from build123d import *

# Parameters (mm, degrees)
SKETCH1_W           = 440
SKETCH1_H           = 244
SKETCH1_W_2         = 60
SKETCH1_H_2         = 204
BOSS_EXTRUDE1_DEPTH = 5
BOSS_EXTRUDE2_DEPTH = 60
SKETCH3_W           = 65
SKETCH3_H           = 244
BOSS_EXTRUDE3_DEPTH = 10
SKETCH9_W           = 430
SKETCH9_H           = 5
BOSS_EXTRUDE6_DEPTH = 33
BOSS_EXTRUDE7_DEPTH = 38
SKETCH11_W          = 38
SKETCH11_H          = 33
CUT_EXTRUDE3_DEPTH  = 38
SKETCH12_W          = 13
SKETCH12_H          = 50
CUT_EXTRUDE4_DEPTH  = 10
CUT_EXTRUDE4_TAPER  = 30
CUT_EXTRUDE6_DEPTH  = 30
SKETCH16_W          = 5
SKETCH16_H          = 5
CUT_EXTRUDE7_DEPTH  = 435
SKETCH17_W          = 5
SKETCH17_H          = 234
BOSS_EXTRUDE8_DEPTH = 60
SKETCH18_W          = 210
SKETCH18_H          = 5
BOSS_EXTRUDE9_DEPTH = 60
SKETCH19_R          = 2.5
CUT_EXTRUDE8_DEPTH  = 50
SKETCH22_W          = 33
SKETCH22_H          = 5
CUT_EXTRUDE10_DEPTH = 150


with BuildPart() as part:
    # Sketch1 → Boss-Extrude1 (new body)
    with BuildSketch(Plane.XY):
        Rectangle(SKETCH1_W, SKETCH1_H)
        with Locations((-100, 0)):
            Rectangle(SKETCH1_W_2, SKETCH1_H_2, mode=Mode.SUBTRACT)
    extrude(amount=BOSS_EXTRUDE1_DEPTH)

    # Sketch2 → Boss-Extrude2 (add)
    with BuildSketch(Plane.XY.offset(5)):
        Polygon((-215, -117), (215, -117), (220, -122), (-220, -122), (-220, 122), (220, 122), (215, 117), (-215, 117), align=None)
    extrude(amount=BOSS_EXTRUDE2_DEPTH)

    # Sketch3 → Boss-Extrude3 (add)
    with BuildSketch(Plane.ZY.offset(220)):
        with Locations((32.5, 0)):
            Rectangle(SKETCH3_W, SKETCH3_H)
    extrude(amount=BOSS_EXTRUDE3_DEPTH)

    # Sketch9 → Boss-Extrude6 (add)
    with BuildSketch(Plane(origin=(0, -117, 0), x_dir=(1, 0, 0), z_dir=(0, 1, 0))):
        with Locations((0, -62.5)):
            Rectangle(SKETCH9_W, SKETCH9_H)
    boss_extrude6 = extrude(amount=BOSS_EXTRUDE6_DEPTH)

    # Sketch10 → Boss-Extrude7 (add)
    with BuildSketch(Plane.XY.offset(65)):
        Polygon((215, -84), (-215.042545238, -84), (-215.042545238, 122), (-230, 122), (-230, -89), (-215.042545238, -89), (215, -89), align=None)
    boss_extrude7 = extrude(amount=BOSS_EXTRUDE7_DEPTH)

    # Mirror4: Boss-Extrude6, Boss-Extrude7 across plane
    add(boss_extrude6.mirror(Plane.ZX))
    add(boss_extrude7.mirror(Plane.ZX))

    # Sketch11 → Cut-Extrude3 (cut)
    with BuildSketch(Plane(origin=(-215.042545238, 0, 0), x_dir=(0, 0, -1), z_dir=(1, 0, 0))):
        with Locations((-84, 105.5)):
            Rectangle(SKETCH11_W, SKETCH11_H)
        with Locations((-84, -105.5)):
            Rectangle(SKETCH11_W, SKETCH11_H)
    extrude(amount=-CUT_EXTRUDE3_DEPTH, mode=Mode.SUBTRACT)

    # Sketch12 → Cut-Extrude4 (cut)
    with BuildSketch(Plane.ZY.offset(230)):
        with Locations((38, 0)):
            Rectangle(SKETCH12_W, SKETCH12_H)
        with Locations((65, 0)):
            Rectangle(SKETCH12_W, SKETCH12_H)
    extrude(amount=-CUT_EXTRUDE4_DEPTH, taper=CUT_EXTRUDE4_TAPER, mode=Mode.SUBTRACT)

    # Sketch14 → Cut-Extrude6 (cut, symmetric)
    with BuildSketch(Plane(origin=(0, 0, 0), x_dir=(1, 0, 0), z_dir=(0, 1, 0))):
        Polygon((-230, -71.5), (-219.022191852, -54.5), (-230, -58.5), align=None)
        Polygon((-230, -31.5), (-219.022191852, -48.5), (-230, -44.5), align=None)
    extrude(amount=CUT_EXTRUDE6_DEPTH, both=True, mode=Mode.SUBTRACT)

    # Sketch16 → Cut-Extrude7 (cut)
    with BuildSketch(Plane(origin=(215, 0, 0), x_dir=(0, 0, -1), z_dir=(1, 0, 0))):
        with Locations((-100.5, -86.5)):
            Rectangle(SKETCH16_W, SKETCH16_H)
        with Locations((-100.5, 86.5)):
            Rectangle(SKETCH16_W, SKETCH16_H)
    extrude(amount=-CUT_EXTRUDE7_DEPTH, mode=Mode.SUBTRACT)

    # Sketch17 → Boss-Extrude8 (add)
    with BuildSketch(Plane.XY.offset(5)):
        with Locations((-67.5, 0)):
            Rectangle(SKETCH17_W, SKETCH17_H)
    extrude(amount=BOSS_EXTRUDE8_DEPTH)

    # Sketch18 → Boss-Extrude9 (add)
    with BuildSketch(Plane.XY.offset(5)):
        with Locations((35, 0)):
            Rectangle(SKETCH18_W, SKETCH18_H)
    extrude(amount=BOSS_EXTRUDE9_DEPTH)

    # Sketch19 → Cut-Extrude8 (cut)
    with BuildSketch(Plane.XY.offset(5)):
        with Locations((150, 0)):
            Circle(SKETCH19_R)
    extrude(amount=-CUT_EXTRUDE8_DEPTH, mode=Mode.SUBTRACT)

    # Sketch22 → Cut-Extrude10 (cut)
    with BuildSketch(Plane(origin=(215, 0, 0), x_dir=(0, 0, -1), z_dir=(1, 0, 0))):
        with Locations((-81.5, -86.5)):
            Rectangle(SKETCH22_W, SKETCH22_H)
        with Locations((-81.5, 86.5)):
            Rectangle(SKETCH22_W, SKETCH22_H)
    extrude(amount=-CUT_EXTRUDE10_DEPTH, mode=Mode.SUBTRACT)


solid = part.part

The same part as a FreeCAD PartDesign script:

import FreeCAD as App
import Part
import Sketcher

V = App.Vector


def add_polygon(sketch, points):
    """Adds a closed chain of lines whose ends are joined by coincident constraints."""
    first, n = sketch.GeometryCount, len(points)
    for a, b in zip(points, points[1:] + points[:1]):
        sketch.addGeometry(Part.LineSegment(App.Vector(*a, 0), App.Vector(*b, 0)), False)
    for i in range(n):
        sketch.addConstraint(Sketcher.Constraint("Coincident", first + i, 2, first + (i + 1) % n, 1))

doc = App.newDocument("Part")
body = doc.addObject("PartDesign::Body", "Body")

sketch1 = body.newObject("Sketcher::SketchObject", "Sketch")
sketch1.AttachmentSupport = (doc.getObject("XY_Plane"), [""])
sketch1.MapMode = "FlatFace"
add_polygon(sketch1, [(-220, 122), (-220, -122), (220, -122), (220, 122)])
add_polygon(sketch1, [(-70, -102), (-130, -102), (-130, 102), (-70, 102)])
sketch1.addConstraint(Sketcher.Constraint("Vertical", 0))
sketch1.addConstraint(Sketcher.Constraint("Horizontal", 1))
sketch1.addConstraint(Sketcher.Constraint("Vertical", 2))
sketch1.addConstraint(Sketcher.Constraint("Horizontal", 3))
sketch1.addConstraint(Sketcher.Constraint("Horizontal", 4))
sketch1.addConstraint(Sketcher.Constraint("Vertical", 5))
sketch1.addConstraint(Sketcher.Constraint("Horizontal", 6))
sketch1.addConstraint(Sketcher.Constraint("Vertical", 7))
sketch1.addConstraint(Sketcher.Constraint("Symmetric", 0, 2, 2, 2, -1, 1))
sketch1.addConstraint(Sketcher.Constraint("DistanceX", 1, 1, 1, 2, 440.0))
sketch1.addConstraint(Sketcher.Constraint("DistanceX", 4, 2, 4, 1, 60.0))
sketch1.addConstraint(Sketcher.Constraint("DistanceY", 0, 2, 0, 1, 244.0))
sketch1.addConstraint(Sketcher.Constraint("DistanceY", 5, 1, 5, 2, 204.0))
sketch1.addConstraint(Sketcher.Constraint("DistanceX", 4, 2, -1, 1, 130.0))
sketch1.addConstraint(Sketcher.Constraint("DistanceY", 4, 2, -1, 1, 102.0))
pad1 = body.newObject("PartDesign::Pad", "Pad")
pad1.Profile = sketch1
pad1.Length = 5

sketch2 = body.newObject("Sketcher::SketchObject", "Sketch001")
sketch2.AttachmentSupport = (doc.getObject("XY_Plane"), [""])
sketch2.MapMode = "FlatFace"
sketch2.AttachmentOffset = App.Placement(V(0, 0, 5), App.Rotation())
add_polygon(sketch2, [(215, -117), (-215, -117), (-215, 117), (215, 117), (220, 122), (-220, 122), (-220, -122), (220, -122)])
sketch2.addConstraint(Sketcher.Constraint("Horizontal", 0))
sketch2.addConstraint(Sketcher.Constraint("Vertical", 1))
sketch2.addConstraint(Sketcher.Constraint("Horizontal", 2))
sketch2.addConstraint(Sketcher.Constraint("Horizontal", 4))
sketch2.addConstraint(Sketcher.Constraint("Vertical", 5))
sketch2.addConstraint(Sketcher.Constraint("Horizontal", 6))
sketch2.addConstraint(Sketcher.Constraint("Symmetric", 0, 2, 2, 2, -1, 1))
sketch2.addConstraint(Sketcher.Constraint("Symmetric", 3, 2, 5, 2, -1, 1))
sketch2.addConstraint(Sketcher.Constraint("Perpendicular", 3, 7))
sketch2.addConstraint(Sketcher.Constraint("Vertical", 3, 2, 6, 2))
sketch2.addConstraint(Sketcher.Constraint("Vertical", 2, 2, 7, 2))
sketch2.addConstraint(Sketcher.Constraint("DistanceX", 0, 2, 0, 1, 430.0))
sketch2.addConstraint(Sketcher.Constraint("DistanceX", 4, 2, 4, 1, 440.0))
sketch2.addConstraint(Sketcher.Constraint("DistanceY", 1, 1, 1, 2, 234.0))
pad2 = body.newObject("PartDesign::Pad", "Pad001")
pad2.Profile = sketch2
pad2.Length = 60

sketch3 = body.newObject("Sketcher::SketchObject", "Sketch002")
sketch3.AttachmentSupport = (doc.getObject("YZ_Plane"), [""])
sketch3.MapMode = "FlatFace"
sketch3.AttachmentOffset = App.Placement(V(0, 0, -220), App.Rotation())
add_polygon(sketch3, [(122, 0), (-122, 0), (-122, 65), (122, 65)])
sketch3.addConstraint(Sketcher.Constraint("Horizontal", 0))
sketch3.addConstraint(Sketcher.Constraint("Vertical", 1))
sketch3.addConstraint(Sketcher.Constraint("Horizontal", 2))
sketch3.addConstraint(Sketcher.Constraint("Vertical", 3))
sketch3.addConstraint(Sketcher.Constraint("Symmetric", 0, 2, 3, 2, -1, 1))
sketch3.addConstraint(Sketcher.Constraint("DistanceX", 0, 2, 0, 1, 244.0))
sketch3.addConstraint(Sketcher.Constraint("DistanceY", 1, 1, 1, 2, 65.0))
pad3 = body.newObject("PartDesign::Pad", "Pad002")
pad3.Profile = sketch3
pad3.Length = 10
pad3.Reversed = True

sketch4 = body.newObject("Sketcher::SketchObject", "Sketch003")
sketch4.AttachmentSupport = (doc.getObject("XZ_Plane"), [""])
sketch4.MapMode = "FlatFace"
sketch4.AttachmentOffset = App.Placement(V(0, 0, 117), App.Rotation())
add_polygon(sketch4, [(-215, 60), (-215, 65), (215, 65), (215, 60)])
sketch4.addConstraint(Sketcher.Constraint("Vertical", 0))
sketch4.addConstraint(Sketcher.Constraint("Horizontal", 1))
sketch4.addConstraint(Sketcher.Constraint("Vertical", 2))
sketch4.addConstraint(Sketcher.Constraint("Horizontal", 3))
sketch4.addConstraint(Sketcher.Constraint("DistanceX", 1, 1, 1, 2, 430.0))
sketch4.addConstraint(Sketcher.Constraint("DistanceY", 0, 1, 0, 2, 5.0))
sketch4.addConstraint(Sketcher.Constraint("DistanceX", 0, 2, -1, 1, 215.0))
sketch4.addConstraint(Sketcher.Constraint("DistanceY", -1, 1, 0, 2, 65.0))
pad4 = body.newObject("PartDesign::Pad", "Pad003")
pad4.Profile = sketch4
pad4.Length = 33
pad4.Reversed = True

sketch5 = body.newObject("Sketcher::SketchObject", "Sketch004")
sketch5.AttachmentSupport = (doc.getObject("XY_Plane"), [""])
sketch5.MapMode = "FlatFace"
sketch5.AttachmentOffset = App.Placement(V(0, 0, 65), App.Rotation())
add_polygon(sketch5, [(215, -84), (-215, -84), (-215, 122), (-230, 122), (-230, -89), (215, -89)])
sketch5.addConstraint(Sketcher.Constraint("Horizontal", 0))
sketch5.addConstraint(Sketcher.Constraint("Vertical", 1))
sketch5.addConstraint(Sketcher.Constraint("Horizontal", 2))
sketch5.addConstraint(Sketcher.Constraint("Vertical", 3))
sketch5.addConstraint(Sketcher.Constraint("Horizontal", 4))
sketch5.addConstraint(Sketcher.Constraint("Vertical", 5))
sketch5.addConstraint(Sketcher.Constraint("DistanceX", 4, 1, 4, 2, 445.0))
sketch5.addConstraint(Sketcher.Constraint("DistanceY", 1, 1, 1, 2, 206.0))
sketch5.addConstraint(Sketcher.Constraint("DistanceY", 3, 2, 3, 1, 211.0))
sketch5.addConstraint(Sketcher.Constraint("DistanceY", 0, 2, -1, 1, 84.0))
sketch5.addConstraint(Sketcher.Constraint("DistanceX", 2, 2, -1, 1, 230.0))
sketch5.addConstraint(Sketcher.Constraint("DistanceX", 0, 2, 0, 1, 430.042545))
pad5 = body.newObject("PartDesign::Pad", "Pad004")
pad5.Profile = sketch5
pad5.Length = 38
doc.recompute()

mirrored = body.newObject("PartDesign::Mirrored", "Mirrored")
mirrored.Originals = [pad4, pad5]
mirrored.MirrorPlane = (doc.getObject("XZ_Plane"), [""])
body.Tip = mirrored

sketch6 = body.newObject("Sketcher::SketchObject", "Sketch005")
sketch6.AttachmentSupport = (doc.getObject("YZ_Plane"), [""])
sketch6.MapMode = "FlatFace"
sketch6.AttachmentOffset = App.Placement(V(0, 0, -215.042545), App.Rotation())
add_polygon(sketch6, [(122, 103), (89, 103), (89, 65), (122, 65)])
add_polygon(sketch6, [(-89, 103), (-122, 103), (-122, 65), (-89, 65)])
sketch6.addConstraint(Sketcher.Constraint("Horizontal", 0))
sketch6.addConstraint(Sketcher.Constraint("Vertical", 1))
sketch6.addConstraint(Sketcher.Constraint("Horizontal", 2))
sketch6.addConstraint(Sketcher.Constraint("Vertical", 3))
sketch6.addConstraint(Sketcher.Constraint("Horizontal", 4))
sketch6.addConstraint(Sketcher.Constraint("Vertical", 5))
sketch6.addConstraint(Sketcher.Constraint("Horizontal", 6))
sketch6.addConstraint(Sketcher.Constraint("Vertical", 7))
sketch6.addConstraint(Sketcher.Constraint("Symmetric", 3, 2, 4, 2, -2))
sketch6.addConstraint(Sketcher.Constraint("Symmetric", 1, 2, 6, 2, -2))
sketch6.addConstraint(Sketcher.Constraint("DistanceX", 0, 2, 0, 1, 33.0))
sketch6.addConstraint(Sketcher.Constraint("DistanceY", 1, 2, 1, 1, 38.0))
sketch6.addConstraint(Sketcher.Constraint("DistanceX", -1, 1, 0, 2, 89.0))
sketch6.addConstraint(Sketcher.Constraint("DistanceY", -1, 1, 0, 2, 103.0))
pocket1 = body.newObject("PartDesign::Pocket", "Pocket")
pocket1.Profile = sketch6
pocket1.Length = 38

sketch7 = body.newObject("Sketcher::SketchObject", "Sketch006")
sketch7.AttachmentSupport = (doc.getObject("YZ_Plane"), [""])
sketch7.MapMode = "FlatFace"
sketch7.AttachmentOffset = App.Placement(V(0, 0, -230), App.Rotation())
add_polygon(sketch7, [(25, 32), (-25, 32), (-25, 44), (25, 44)])
add_polygon(sketch7, [(25, 58), (-25, 58), (-25, 72), (25, 72)])
sketch7.addConstraint(Sketcher.Constraint("Horizontal", 0))
sketch7.addConstraint(Sketcher.Constraint("Vertical", 1))
sketch7.addConstraint(Sketcher.Constraint("Horizontal", 2))
sketch7.addConstraint(Sketcher.Constraint("Vertical", 3))
sketch7.addConstraint(Sketcher.Constraint("Horizontal", 4))
sketch7.addConstraint(Sketcher.Constraint("Vertical", 5))
sketch7.addConstraint(Sketcher.Constraint("Horizontal", 6))
sketch7.addConstraint(Sketcher.Constraint("Vertical", 7))
sketch7.addConstraint(Sketcher.Constraint("Vertical", 1, 2, 4, 2))
sketch7.addConstraint(Sketcher.Constraint("Vertical", 3, 2, 6, 2))
sketch7.addConstraint(Sketcher.Constraint("Equal", 3, 5))
sketch7.addConstraint(Sketcher.Constraint("DistanceX", 0, 2, 0, 1, 50.0))
sketch7.addConstraint(Sketcher.Constraint("DistanceY", 1, 1, 1, 2, 13.0))
sketch7.addConstraint(Sketcher.Constraint("DistanceX", 0, 2, -1, 1, 25.0))
sketch7.addConstraint(Sketcher.Constraint("DistanceY", 1, 2, 4, 2, 14.0))
sketch7.addConstraint(Sketcher.Constraint("DistanceY", -1, 1, 0, 2, 31.5))
pocket2 = body.newObject("PartDesign::Pocket", "Pocket001")
pocket2.Profile = sketch7
pocket2.Length = 10
pocket2.Reversed = True
pocket2.TaperAngle = -30

sketch8 = body.newObject("Sketcher::SketchObject", "Sketch007")
sketch8.AttachmentSupport = (doc.getObject("XZ_Plane"), [""])
sketch8.MapMode = "FlatFace"
add_polygon(sketch8, [(-230, 72), (-219, 54), (-230, 58)])
add_polygon(sketch8, [(-219, 48), (-230, 32), (-230, 44)])
sketch8.addConstraint(Sketcher.Constraint("Vertical", 2))
sketch8.addConstraint(Sketcher.Constraint("Vertical", 4))
sketch8.addConstraint(Sketcher.Constraint("Vertical", 2, 2, 3, 2))
sketch8.addConstraint(Sketcher.Constraint("Vertical", 0, 2, 5, 2))
sketch8.addConstraint(Sketcher.Constraint("Equal", 2, 4))
sketch8.addConstraint(Sketcher.Constraint("Equal", 0, 3))
sketch8.addConstraint(Sketcher.Constraint("DistanceY", 2, 1, 2, 2, 13.0))
sketch8.addConstraint(Sketcher.Constraint("DistanceX", 1, 2, -1, 1, 230.0))
sketch8.addConstraint(Sketcher.Constraint("DistanceY", 0, 2, 1, 2, 4.0))
sketch8.addConstraint(Sketcher.Constraint("DistanceY", 3, 2, 0, 2, 23.0))
sketch8.addConstraint(Sketcher.Constraint("DistanceY", -1, 1, 0, 2, 54.5))
sketch8.addConstraint(Sketcher.Constraint("Distance", 0, 20.23641))
pocket3 = body.newObject("PartDesign::Pocket", "Pocket002")
pocket3.Profile = sketch8
pocket3.Length = 60
pocket3.Midplane = True

sketch9 = body.newObject("Sketcher::SketchObject", "Sketch008")
sketch9.AttachmentSupport = (doc.getObject("YZ_Plane"), [""])
sketch9.MapMode = "FlatFace"
sketch9.AttachmentOffset = App.Placement(V(0, 0, 215), App.Rotation())
add_polygon(sketch9, [(-84, 103), (-89, 103), (-89, 98), (-84, 98)])
add_polygon(sketch9, [(89, 103), (84, 103), (84, 98), (89, 98)])
sketch9.addConstraint(Sketcher.Constraint("Horizontal", 0))
sketch9.addConstraint(Sketcher.Constraint("Vertical", 1))
sketch9.addConstraint(Sketcher.Constraint("Horizontal", 2))
sketch9.addConstraint(Sketcher.Constraint("Vertical", 3))
sketch9.addConstraint(Sketcher.Constraint("Horizontal", 4))
sketch9.addConstraint(Sketcher.Constraint("Vertical", 5))
sketch9.addConstraint(Sketcher.Constraint("Horizontal", 6))
sketch9.addConstraint(Sketcher.Constraint("Vertical", 7))
sketch9.addConstraint(Sketcher.Constraint("Symmetric", 3, 2, 4, 2, -2))
sketch9.addConstraint(Sketcher.Constraint("Symmetric", 1, 2, 6, 2, -2))
sketch9.addConstraint(Sketcher.Constraint("Equal", 6, 1))
sketch9.addConstraint(Sketcher.Constraint("DistanceX", 0, 2, 0, 1, 5.0))
sketch9.addConstraint(Sketcher.Constraint("DistanceX", 0, 2, -1, 1, 89.0))
sketch9.addConstraint(Sketcher.Constraint("DistanceY", -1, 1, 0, 2, 103.0))
pocket4 = body.newObject("PartDesign::Pocket", "Pocket003")
pocket4.Profile = sketch9
pocket4.Length = 435

sketch10 = body.newObject("Sketcher::SketchObject", "Sketch009")
sketch10.AttachmentSupport = (doc.getObject("XY_Plane"), [""])
sketch10.MapMode = "FlatFace"
sketch10.AttachmentOffset = App.Placement(V(0, 0, 5), App.Rotation())
add_polygon(sketch10, [(-70, 117), (-70, -117), (-65, -117), (-65, 117)])
sketch10.addConstraint(Sketcher.Constraint("Vertical", 0))
sketch10.addConstraint(Sketcher.Constraint("Horizontal", 1))
sketch10.addConstraint(Sketcher.Constraint("Vertical", 2))
sketch10.addConstraint(Sketcher.Constraint("Horizontal", 3))
sketch10.addConstraint(Sketcher.Constraint("DistanceX", 1, 1, 1, 2, 5.0))
sketch10.addConstraint(Sketcher.Constraint("DistanceY", 0, 2, 0, 1, 234.0))
sketch10.addConstraint(Sketcher.Constraint("DistanceX", 0, 2, -1, 1, 70.0))
sketch10.addConstraint(Sketcher.Constraint("DistanceY", 0, 2, -1, 1, 117.0))
pad6 = body.newObject("PartDesign::Pad", "Pad005")
pad6.Profile = sketch10
pad6.Length = 60

sketch11 = body.newObject("Sketcher::SketchObject", "Sketch010")
sketch11.AttachmentSupport = (doc.getObject("XY_Plane"), [""])
sketch11.MapMode = "FlatFace"
sketch11.AttachmentOffset = App.Placement(V(0, 0, 5), App.Rotation())
add_polygon(sketch11, [(-70, 2), (-70, -2), (140, -2), (140, 2)])
sketch11.addConstraint(Sketcher.Constraint("Vertical", 0))
sketch11.addConstraint(Sketcher.Constraint("Horizontal", 1))
sketch11.addConstraint(Sketcher.Constraint("Vertical", 2))
sketch11.addConstraint(Sketcher.Constraint("Horizontal", 3))
sketch11.addConstraint(Sketcher.Constraint("DistanceX", 1, 1, 1, 2, 210.0))
sketch11.addConstraint(Sketcher.Constraint("DistanceY", 0, 2, 0, 1, 5.0))
sketch11.addConstraint(Sketcher.Constraint("DistanceX", 0, 2, -1, 1, 70.0))
sketch11.addConstraint(Sketcher.Constraint("DistanceY", 0, 2, -1, 1, 2.5))
pad7 = body.newObject("PartDesign::Pad", "Pad006")
pad7.Profile = sketch11
pad7.Length = 60

sketch12 = body.newObject("Sketcher::SketchObject", "Sketch011")
sketch12.AttachmentSupport = (doc.getObject("XY_Plane"), [""])
sketch12.MapMode = "FlatFace"
sketch12.AttachmentOffset = App.Placement(V(0, 0, 5), App.Rotation())
sketch12.addGeometry(Part.Circle(V(150, 0, 0), V(0, 0, 1), 2.5), False)
sketch12.addConstraint(Sketcher.Constraint("PointOnObject", 0, 3, -1))
sketch12.addConstraint(Sketcher.Constraint("Diameter", 0, 5.0))
sketch12.addConstraint(Sketcher.Constraint("DistanceX", -1, 1, 0, 3, 150.0))
pocket5 = body.newObject("PartDesign::Pocket", "Pocket004")
pocket5.Profile = sketch12
pocket5.Length = 50

sketch13 = body.newObject("Sketcher::SketchObject", "Sketch012")
sketch13.AttachmentSupport = (doc.getObject("YZ_Plane"), [""])
sketch13.MapMode = "FlatFace"
sketch13.AttachmentOffset = App.Placement(V(0, 0, 215), App.Rotation())
add_polygon(sketch13, [(-84, 98), (-89, 98), (-89, 65), (-84, 65)])
add_polygon(sketch13, [(89, 98), (84, 98), (84, 65), (89, 65)])
sketch13.addConstraint(Sketcher.Constraint("Horizontal", 0))
sketch13.addConstraint(Sketcher.Constraint("Vertical", 1))
sketch13.addConstraint(Sketcher.Constraint("Horizontal", 2))
sketch13.addConstraint(Sketcher.Constraint("Vertical", 3))
sketch13.addConstraint(Sketcher.Constraint("Horizontal", 4))
sketch13.addConstraint(Sketcher.Constraint("Vertical", 5))
sketch13.addConstraint(Sketcher.Constraint("Horizontal", 6))
sketch13.addConstraint(Sketcher.Constraint("Vertical", 7))
sketch13.addConstraint(Sketcher.Constraint("Symmetric", 3, 2, 4, 2, -2))
sketch13.addConstraint(Sketcher.Constraint("Symmetric", 1, 2, 6, 2, -2))
sketch13.addConstraint(Sketcher.Constraint("DistanceX", 0, 2, 0, 1, 5.0))
sketch13.addConstraint(Sketcher.Constraint("DistanceY", 1, 2, 1, 1, 33.0))
sketch13.addConstraint(Sketcher.Constraint("DistanceX", 0, 2, -1, 1, 89.0))
sketch13.addConstraint(Sketcher.Constraint("DistanceY", -1, 1, 0, 2, 98.0))
pocket6 = body.newObject("PartDesign::Pocket", "Pocket005")
pocket6.Profile = sketch13
pocket6.Length = 150

doc.recompute()
